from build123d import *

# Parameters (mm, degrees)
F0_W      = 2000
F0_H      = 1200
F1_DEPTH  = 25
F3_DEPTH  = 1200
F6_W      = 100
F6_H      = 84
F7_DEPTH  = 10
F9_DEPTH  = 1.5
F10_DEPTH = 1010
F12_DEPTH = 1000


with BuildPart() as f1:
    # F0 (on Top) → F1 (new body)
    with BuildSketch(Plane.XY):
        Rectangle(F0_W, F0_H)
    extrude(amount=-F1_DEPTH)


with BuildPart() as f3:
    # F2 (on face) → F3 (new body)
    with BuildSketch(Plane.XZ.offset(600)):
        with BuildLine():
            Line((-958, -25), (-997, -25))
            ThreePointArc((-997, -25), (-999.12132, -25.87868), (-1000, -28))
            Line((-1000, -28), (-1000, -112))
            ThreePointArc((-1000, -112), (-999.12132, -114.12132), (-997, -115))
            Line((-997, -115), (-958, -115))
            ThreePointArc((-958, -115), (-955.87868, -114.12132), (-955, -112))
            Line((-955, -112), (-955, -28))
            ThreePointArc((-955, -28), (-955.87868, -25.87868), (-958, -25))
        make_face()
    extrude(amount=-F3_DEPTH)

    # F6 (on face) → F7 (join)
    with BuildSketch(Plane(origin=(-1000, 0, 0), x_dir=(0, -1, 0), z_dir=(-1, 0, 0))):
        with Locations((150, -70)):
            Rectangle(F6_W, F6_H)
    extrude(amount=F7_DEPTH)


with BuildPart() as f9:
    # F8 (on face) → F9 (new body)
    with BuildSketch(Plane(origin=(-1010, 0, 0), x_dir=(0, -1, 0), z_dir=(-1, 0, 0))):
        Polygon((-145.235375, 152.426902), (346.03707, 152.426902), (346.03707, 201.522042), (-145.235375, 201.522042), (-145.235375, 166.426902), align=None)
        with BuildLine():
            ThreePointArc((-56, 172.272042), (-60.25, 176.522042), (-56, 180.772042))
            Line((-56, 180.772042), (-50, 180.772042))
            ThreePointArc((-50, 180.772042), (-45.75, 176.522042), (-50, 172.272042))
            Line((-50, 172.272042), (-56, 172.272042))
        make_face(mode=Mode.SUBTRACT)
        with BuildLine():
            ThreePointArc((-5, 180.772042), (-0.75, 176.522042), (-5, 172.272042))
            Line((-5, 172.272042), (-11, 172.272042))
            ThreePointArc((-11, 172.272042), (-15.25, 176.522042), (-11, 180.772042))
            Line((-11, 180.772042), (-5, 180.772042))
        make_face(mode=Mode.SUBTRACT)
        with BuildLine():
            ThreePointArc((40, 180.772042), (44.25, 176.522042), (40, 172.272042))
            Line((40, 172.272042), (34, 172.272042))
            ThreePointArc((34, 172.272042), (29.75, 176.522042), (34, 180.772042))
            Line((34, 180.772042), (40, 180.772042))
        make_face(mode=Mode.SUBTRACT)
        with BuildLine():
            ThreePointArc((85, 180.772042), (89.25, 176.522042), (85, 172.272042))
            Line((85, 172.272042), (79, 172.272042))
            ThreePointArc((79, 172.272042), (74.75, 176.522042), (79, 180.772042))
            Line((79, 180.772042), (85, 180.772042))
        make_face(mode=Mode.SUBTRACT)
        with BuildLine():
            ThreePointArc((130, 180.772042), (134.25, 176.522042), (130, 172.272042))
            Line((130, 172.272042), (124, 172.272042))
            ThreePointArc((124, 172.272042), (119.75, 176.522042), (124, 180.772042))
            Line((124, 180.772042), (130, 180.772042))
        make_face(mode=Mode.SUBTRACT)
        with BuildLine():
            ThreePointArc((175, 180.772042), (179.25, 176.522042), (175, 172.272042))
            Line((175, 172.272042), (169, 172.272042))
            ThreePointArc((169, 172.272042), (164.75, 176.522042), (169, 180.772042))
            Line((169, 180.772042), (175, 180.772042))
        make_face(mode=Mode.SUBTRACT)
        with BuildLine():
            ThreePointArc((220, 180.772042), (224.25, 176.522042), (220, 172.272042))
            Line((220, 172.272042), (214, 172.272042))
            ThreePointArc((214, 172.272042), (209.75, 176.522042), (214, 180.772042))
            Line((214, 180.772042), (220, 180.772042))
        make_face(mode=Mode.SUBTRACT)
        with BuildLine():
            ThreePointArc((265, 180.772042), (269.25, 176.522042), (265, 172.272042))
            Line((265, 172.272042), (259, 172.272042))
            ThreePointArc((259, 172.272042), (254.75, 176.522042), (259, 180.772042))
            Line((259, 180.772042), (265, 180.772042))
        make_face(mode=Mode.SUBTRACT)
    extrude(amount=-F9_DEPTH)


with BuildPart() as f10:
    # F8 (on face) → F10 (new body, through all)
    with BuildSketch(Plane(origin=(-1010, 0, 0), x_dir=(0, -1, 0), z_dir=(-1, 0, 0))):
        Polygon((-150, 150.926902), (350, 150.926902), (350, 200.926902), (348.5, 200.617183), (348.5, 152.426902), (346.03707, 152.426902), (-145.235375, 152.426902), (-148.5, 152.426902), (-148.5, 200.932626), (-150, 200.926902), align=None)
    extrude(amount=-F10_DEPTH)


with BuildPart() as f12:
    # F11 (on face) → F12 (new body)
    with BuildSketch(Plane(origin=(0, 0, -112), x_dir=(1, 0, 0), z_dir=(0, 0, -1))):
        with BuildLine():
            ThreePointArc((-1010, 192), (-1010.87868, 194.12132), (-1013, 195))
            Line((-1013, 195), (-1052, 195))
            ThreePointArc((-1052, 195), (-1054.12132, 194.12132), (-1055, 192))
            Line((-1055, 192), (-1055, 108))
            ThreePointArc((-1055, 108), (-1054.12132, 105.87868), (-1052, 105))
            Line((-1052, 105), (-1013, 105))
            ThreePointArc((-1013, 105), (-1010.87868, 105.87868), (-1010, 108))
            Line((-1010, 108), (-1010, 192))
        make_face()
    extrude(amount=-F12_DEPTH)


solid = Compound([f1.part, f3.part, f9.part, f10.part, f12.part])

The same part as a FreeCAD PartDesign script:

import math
import FreeCAD as App
import Part
import Sketcher
from FreeCAD import Vector

doc = App.newDocument("Part")
params = doc.addObject("Spreadsheet::Sheet", "Params")
for row, (alias, value) in enumerate([
    ("sketch1_width", "2000 mm"),
    ("sketch1_height", "1200 mm"),
    ("pad1_length", "25 mm"),
    ("sketch2_radius", "3.000001 mm"),
    ("sketch2_width", "39 mm"),
    ("sketch2_height", "84 mm"),
    ("pad2_length", "1200 mm"),
    ("sketch3_width", "100 mm"),
    ("sketch3_height", "84 mm"),
    ("pad3_length", "10 mm"),
    ("sketch4_width", "6 mm"),
    ("sketch4_radius", "4.25 mm"),
    ("pad4_length", "1.5 mm"),
    ("sketch5_width", "500 mm"),
    ("sketch5_width2", "497 mm"),
    ("sketch5_height", "50 mm"),
    ("pad5_length", "1010 mm"),
    ("sketch6_radius", "3.000001 mm"),
    ("sketch6_width", "39 mm"),
    ("sketch6_height", "84 mm"),
    ("pad6_length", "1000 mm"),
], start=1):
    params.set(f"A{row}", alias)
    params.set(f"B{row}", "=" + value)
    params.setAlias(f"B{row}", alias)

body = doc.addObject("PartDesign::Body", "Body")

sketch1 = body.newObject("Sketcher::SketchObject", "Sketch")
sketch1.AttachmentSupport = (doc.getObject("XY_Plane"), [""])
sketch1.MapMode = "FlatFace"
sketch1.addGeometry([
    Part.LineSegment(Vector(-1000, 600, 0), Vector(-1000, -600, 0)),
    Part.LineSegment(Vector(-1000, -600, 0), Vector(1000, -600, 0)),
    Part.LineSegment(Vector(1000, -600, 0), Vector(1000, 600, 0)),
    Part.LineSegment(Vector(1000, 600, 0), Vector(-1000, 600, 0)),
], False)
sketch1.addConstraint([
    Sketcher.Constraint("Coincident", 0, 2, 1, 1),
    Sketcher.Constraint("Coincident", 1, 2, 2, 1),
    Sketcher.Constraint("Coincident", 2, 2, 3, 1),
    Sketcher.Constraint("Coincident", 3, 2, 0, 1),
    Sketcher.Constraint("Vertical", 0),
    Sketcher.Constraint("Horizontal", 1),
    Sketcher.Constraint("Vertical", 2),
    Sketcher.Constraint("Horizontal", 3),
    Sketcher.Constraint("Symmetric", 0, 2, 2, 2, -1, 1),
    Sketcher.Constraint("DistanceX", 1, 1, 1, 2, 2000.0),
    Sketcher.Constraint("DistanceY", 0, 2, 0, 1, 1200.0),
])
sketch1.setExpression("Constraints[9]", "Params.sketch1_width")
sketch1.setExpression("Constraints[10]", "Params.sketch1_height")
pad1 = body.newObject("PartDesign::Pad", "Pad")
pad1.Profile = sketch1
pad1.setExpression("Length", "Params.pad1_length")
pad1.Reversed = True
body2 = doc.addObject("PartDesign::Body", "Body001")

sketch2 = body2.newObject("Sketcher::SketchObject", "Sketch001")
sketch2.AttachmentSupport = (doc.getObject("XZ_Plane001"), [""])
sketch2.MapMode = "FlatFace"
sketch2.AttachmentOffset = App.Placement(Vector(0, 0, 600), App.Rotation())
sketch2.addGeometry([
    Part.LineSegment(Vector(-958, -25, 0), Vector(-997, -25, 0)),
    Part.ArcOfCircle(Part.Circle(Vector(-996.999999, -28.000001, 0), Vector(0, 0, 1), 3.000001), math.radians(90.000022), math.radians(179.999978)),
    Part.LineSegment(Vector(-1000, -28, 0), Vector(-1000, -112, 0)),
    Part.ArcOfCircle(Part.Circle(Vector(-996.999999, -111.999999, 0), Vector(0, 0, 1), 3.000001), math.radians(-179.999978), math.radians(-90.000022)),
    Part.LineSegment(Vector(-997, -115, 0), Vector(-958, -115, 0)),
    Part.ArcOfCircle(Part.Circle(Vector(-958.000001, -111.999999, 0), Vector(0, 0, 1), 3.000001), math.radians(-89.999978), math.radians(-0.000022)),
    Part.LineSegment(Vector(-955, -112, 0), Vector(-955, -28, 0)),
    Part.ArcOfCircle(Part.Circle(Vector(-958.000001, -28.000001, 0), Vector(0, 0, 1), 3.000001), math.radians(0.000022), math.radians(89.999978)),
], False)
sketch2.addConstraint([
    Sketcher.Constraint("Tangent", 0, 2, 1, 1),
    Sketcher.Constraint("Tangent", 1, 2, 2, 1),
    Sketcher.Constraint("Tangent", 2, 2, 3, 1),
    Sketcher.Constraint("Tangent", 3, 2, 4, 1),
    Sketcher.Constraint("Tangent", 4, 2, 5, 1),
    Sketcher.Constraint("Tangent", 5, 2, 6, 1),
    Sketcher.Constraint("Tangent", 6, 2, 7, 1),
    Sketcher.Constraint("Tangent", 7, 2, 0, 1),
    Sketcher.Constraint("Horizontal", 0),
    Sketcher.Constraint("Vertical", 2),
    Sketcher.Constraint("Horizontal", 4),
    Sketcher.Constraint("Vertical", 6),
    Sketcher.Constraint("Equal", 1, 3),
    Sketcher.Constraint("Equal", 3, 5),
    Sketcher.Constraint("Equal", 5, 7),
    Sketcher.Constraint("Radius", 1, 3.000001),
    Sketcher.Constraint("DistanceX", 0, 2, 0, 1, 39.0),
    Sketcher.Constraint("DistanceY", 2, 2, 2, 1, 84.0),
    Sketcher.Constraint("DistanceX", 1, 3, -1, 1, 996.999999),
    Sketcher.Constraint("DistanceY", 1, 3, -1, 1, 28.000001),
])
sketch2.setExpression("Constraints[15]", "Params.sketch2_radius")
sketch2.setExpression("Constraints[16]", "Params.sketch2_width")
sketch2.setExpression("Constraints[17]", "Params.sketch2_height")
pad2 = body2.newObject("PartDesign::Pad", "Pad001")
pad2.Profile = sketch2
pad2.setExpression("Length", "Params.pad2_length")
pad2.Reversed = True

sketch3 = body2.newObject("Sketcher::SketchObject", "Sketch002")
sketch3.AttachmentSupport = (doc.getObject("YZ_Plane001"), [""])
sketch3.MapMode = "FlatFace"
sketch3.AttachmentOffset = App.Placement(Vector(0, 0, -1000), App.Rotation())
sketch3.addGeometry([
    Part.LineSegment(Vector(-100, -28, 0), Vector(-100, -112, 0)),
    Part.LineSegment(Vector(-100, -112, 0), Vector(-200, -112, 0)),
    Part.LineSegment(Vector(-200, -112, 0), Vector(-200, -28, 0)),
    Part.LineSegment(Vector(-200, -28, 0), Vector(-100, -28, 0)),
], False)
sketch3.addConstraint([
    Sketcher.Constraint("Coincident", 0, 2, 1, 1),
    Sketcher.Constraint("Coincident", 1, 2, 2, 1),
    Sketcher.Constraint("Coincident", 2, 2, 3, 1),
    Sketcher.Constraint("Coincident", 3, 2, 0, 1),
    Sketcher.Constraint("Vertical", 0),
    Sketcher.Constraint("Horizontal", 1),
    Sketcher.Constraint("Vertical", 2),
    Sketcher.Constraint("Horizontal", 3),
    Sketcher.Constraint("DistanceX", 1, 2, 1, 1, 100.0),
    Sketcher.Constraint("DistanceY", 0, 2, 0, 1, 84.0),
    Sketcher.Constraint("DistanceX", 0, 2, -1, 1, 100.0),
    Sketcher.Constraint("DistanceY", 0, 2, -1, 1, 112.0),
])
sketch3.setExpression("Constraints[8]", "Params.sketch3_width")
sketch3.setExpression("Constraints[9]", "Params.sketch3_height")
pad3 = body2.newObject("PartDesign::Pad", "Pad002")
pad3.Profile = sketch3
pad3.setExpression("Length", "Params.pad3_length")
pad3.Reversed = True
body3 = doc.addObject("PartDesign::Body", "Body002")

sketch4 = body3.newObject("Sketcher::SketchObject", "Sketch003")
sketch4.AttachmentSupport = (doc.getObject("YZ_Plane002"), [""])
sketch4.MapMode = "FlatFace"
sketch4.AttachmentOffset = App.Placement(Vector(0, 0, -1010), App.Rotation())
sketch4.addGeometry([
    Part.LineSegment(Vector(145.235375, 152.426902, 0), Vector(-346.03707, 152.426902, 0)),
    Part.LineSegment(Vector(-346.03707, 152.426902, 0), Vector(-346.03707, 201.522042, 0)),
    Part.LineSegment(Vector(-346.03707, 201.522042, 0), Vector(145.235375, 201.522042, 0)),
    Part.LineSegment(Vector(145.235375, 201.522042, 0), Vector(145.235375, 152.426902, 0)),
    Part.LineSegment(Vector(50, 172.272042, 0), Vector(56, 172.272042, 0)),
    Part.ArcOfCircle(Part.Circle(Vector(56, 176.522042, 0), Vector(0, 0, 1), 4.25), math.radians(-90), math.radians(90)),
    Part.LineSegment(Vector(56, 180.772042, 0), Vector(50, 180.772042, 0)),
    Part.ArcOfCircle(Part.Circle(Vector(50, 176.522042, 0), Vector(0, 0, 1), 4.25), math.radians(90), math.radians(270)),
    Part.LineSegment(Vector(11, 180.772042, 0), Vector(5, 180.772042, 0)),
    Part.ArcOfCircle(Part.Circle(Vector(5, 176.522042, 0), Vector(0, 0, 1), 4.25), math.radians(90), math.radians(270)),
    Part.LineSegment(Vector(5, 172.272042, 0), Vector(11, 172.272042, 0)),
    Part.ArcOfCircle(Part.Circle(Vector(11, 176.522042, 0), Vector(0, 0, 1), 4.25), math.radians(-90), math.radians(90)),
    Part.LineSegment(Vector(-34, 180.772042, 0), Vector(-40, 180.772042, 0)),
    Part.ArcOfCircle(Part.Circle(Vector(-40, 176.522042, 0), Vector(0, 0, 1), 4.25), math.radians(90), math.radians(270)),
    Part.LineSegment(Vector(-40, 172.272042, 0), Vector(-34, 172.272042, 0)),
    Part.ArcOfCircle(Part.Circle(Vector(-34, 176.522042, 0), Vector(0, 0, 1), 4.25), math.radians(-90), math.radians(90)),
    Part.LineSegment(Vector(-79, 180.772042, 0), Vector(-85, 180.772042, 0)),
    Part.ArcOfCircle(Part.Circle(Vector(-85, 176.522042, 0), Vector(0, 0, 1), 4.25), math.radians(90), math.radians(270)),
    Part.LineSegment(Vector(-85, 172.272042, 0), Vector(-79, 172.272042, 0)),
    Part.ArcOfCircle(Part.Circle(Vector(-79, 176.522042, 0), Vector(0, 0, 1), 4.25), math.radians(-90), math.radians(90)),
    Part.LineSegment(Vector(-124, 180.772042, 0), Vector(-130, 180.772042, 0)),
    Part.ArcOfCircle(Part.Circle(Vector(-130, 176.522042, 0), Vector(0, 0, 1), 4.25), math.radians(90), math.radians(270)),
    Part.LineSegment(Vector(-130, 172.272042, 0), Vector(-124, 172.272042, 0)),
    Part.ArcOfCircle(Part.Circle(Vector(-124, 176.522042, 0), Vector(0, 0, 1), 4.25), math.radians(-90), math.radians(90)),
    Part.LineSegment(Vector(-169, 180.772042, 0), Vector(-175, 180.772042, 0)),
    Part.ArcOfCircle(Part.Circle(Vector(-175, 176.522042, 0), Vector(0, 0, 1), 4.25), math.radians(90), math.radians(270)),
    Part.LineSegment(Vector(-175, 172.272042, 0), Vector(-169, 172.272042, 0)),
    Part.ArcOfCircle(Part.Circle(Vector(-169, 176.522042, 0), Vector(0, 0, 1), 4.25), math.radians(-90), math.radians(90)),
    Part.LineSegment(Vector(-214, 180.772042, 0), Vector(-220, 180.772042, 0)),
    Part.ArcOfCircle(Part.Circle(Vector(-220, 176.522042, 0), Vector(0, 0, 1), 4.25), math.radians(90), math.radians(270)),
    Part.LineSegment(Vector(-220, 172.272042, 0), Vector(-214, 172.272042, 0)),
    Part.ArcOfCircle(Part.Circle(Vector(-214, 176.522042, 0), Vector(0, 0, 1), 4.25), math.radians(-90), math.radians(90)),
    Part.LineSegment(Vector(-259, 180.772042, 0), Vector(-265, 180.772042, 0)),
    Part.ArcOfCircle(Part.Circle(Vector(-265, 176.522042, 0), Vector(0, 0, 1), 4.25), math.radians(90), math.radians(270)),
    Part.LineSegment(Vector(-265, 172.272042, 0), Vector(-259, 172.272042, 0)),
    Part.ArcOfCircle(Part.Circle(Vector(-259, 176.522042, 0), Vector(0, 0, 1), 4.25), math.radians(-90), math.radians(90)),
], False)
sketch4.addConstraint([
    Sketcher.Constraint("Coincident", 0, 2, 1, 1),
    Sketcher.Constraint("Coincident", 1, 2, 2, 1),
    Sketcher.Constraint("Coincident", 2, 2, 3, 1),
    Sketcher.Constraint("Coincident", 3, 2, 0, 1),
    Sketcher.Constraint("Tangent", 4, 2, 5, 1),
    Sketcher.Constraint("Tangent", 5, 2, 6, 1),
    Sketcher.Constraint("Tangent", 6, 2, 7, 1),
    Sketcher.Constraint("Tangent", 7, 2, 4, 1),
    Sketcher.Constraint("Tangent", 8, 2, 9, 1),
    Sketcher.Constraint("Tangent", 9, 2, 10, 1),
    Sketcher.Constraint("Tangent", 10, 2, 11, 1),
    Sketcher.Constraint("Tangent", 11, 2, 8, 1),
    Sketcher.Constraint("Tangent", 12, 2, 13, 1),
    Sketcher.Constraint("Tangent", 13, 2, 14, 1),
    Sketcher.Constraint("Tangent", 14, 2, 15, 1),
    Sketcher.Constraint("Tangent", 15, 2, 12, 1),
    Sketcher.Constraint("Tangent", 16, 2, 17, 1),
    Sketcher.Constraint("Tangent", 17, 2, 18, 1),
    Sketcher.Constraint("Tangent", 18, 2, 19, 1),
    Sketcher.Constraint("Tangent", 19, 2, 16, 1),
    Sketcher.Constraint("Tangent", 20, 2, 21, 1),
    Sketcher.Constraint("Tangent", 21, 2, 22, 1),
    Sketcher.Constraint("Tangent", 22, 2, 23, 1),
    Sketcher.Constraint("Tangent", 23, 2, 20, 1),
    Sketcher.Constraint("Tangent", 24, 2, 25, 1),
    Sketcher.Constraint("Tangent", 25, 2, 26, 1),
    Sketcher.Constraint("Tangent", 26, 2, 27, 1),
    Sketcher.Constraint("Tangent", 27, 2, 24, 1),
    Sketcher.Constraint("Tangent", 28, 2, 29, 1),
    Sketcher.Constraint("Tangent", 29, 2, 30, 1),
    Sketcher.Constraint("Tangent", 30, 2, 31, 1),
    Sketcher.Constraint("Tangent", 31, 2, 28, 1),
    Sketcher.Constraint("Tangent", 32, 2, 33, 1),
    Sketcher.Constraint("Tangent", 33, 2, 34, 1),
    Sketcher.Constraint("Tangent", 34, 2, 35, 1),
    Sketcher.Constraint("Tangent", 35, 2, 32, 1),
    Sketcher.Constraint("Horizontal", 0),
    Sketcher.Constraint("Vertical", 1),
    Sketcher.Constraint("Horizontal", 2),
    Sketcher.Constraint("Vertical", 3),
    Sketcher.Constraint("Horizontal", 4),
    Sketcher.Constraint("Horizontal", 6),
    Sketcher.Constraint("Horizontal", 8),
    Sketcher.Constraint("Horizontal", 10),
    Sketcher.Constraint("Horizontal", 12),
    Sketcher.Constraint("Horizontal", 14),
    Sketcher.Constraint("Horizontal", 16),
    Sketcher.Constraint("Horizontal", 18),
    Sketcher.Constraint("Horizontal", 20),
    Sketcher.Constraint("Horizontal", 22),
    Sketcher.Constraint("Horizontal", 24),
    Sketcher.Constraint("Horizontal", 26),
    Sketcher.Constraint("Horizontal", 28),
    Sketcher.Constraint("Horizontal", 30),
    Sketcher.Constraint("Horizontal", 32),
    Sketcher.Constraint("Horizontal", 34),
    Sketcher.Constraint("Equal", 7, 9),
    Sketcher.Constraint("Equal", 11, 13),
    Sketcher.Constraint("Equal", 15, 17),
    Sketcher.Constraint("Equal", 19, 21),
    Sketcher.Constraint("Equal", 23, 25),
    Sketcher.Constraint("Equal", 27, 29),
    Sketcher.Constraint("Equal", 31, 33),
    Sketcher.Constraint("Horizontal", 7, 3, 9, 3),
    Sketcher.Constraint("Horizontal", 11, 3, 13, 3),
    Sketcher.Constraint("Horizontal", 15, 3, 17, 3),
    Sketcher.Constraint("Horizontal", 19, 3, 21, 3),
    Sketcher.Constraint("Horizontal", 23, 3, 25, 3),
    Sketcher.Constraint("Horizontal", 27, 3, 29, 3),
    Sketcher.Constraint("Horizontal", 31, 3, 33, 3),
    Sketcher.Constraint("Equal", 6, 8),
    Sketcher.Constraint("Equal", 10, 12),
    Sketcher.Constraint("Equal", 14, 16),
    Sketcher.Constraint("Equal", 18, 20),
    Sketcher.Constraint("Equal", 22, 24),
    Sketcher.Constraint("Equal", 26, 28),
    Sketcher.Constraint("Equal", 30, 32),
    Sketcher.Constraint("DistanceX", 4, 1, 4, 2, 6.0),
    Sketcher.Constraint("Radius", 5, 4.25),
    Sketcher.Constraint("DistanceX", -1, 1, 5, 3, 56.0),
    Sketcher.Constraint("DistanceX", -1, 1, 9, 3, 5.0),
    Sketcher.Constraint("DistanceX", 13, 3, -1, 1, 40.0),
    Sketcher.Constraint("DistanceX", 17, 3, -1, 1, 85.0),
    Sketcher.Constraint("DistanceX", 21, 3, -1, 1, 130.0),
    Sketcher.Constraint("DistanceX", 25, 3, -1, 1, 175.0),
    Sketcher.Constraint("DistanceX", 29, 3, -1, 1, 220.0),
    Sketcher.Constraint("DistanceX", 33, 3, -1, 1, 265.0),
    Sketcher.Constraint("DistanceY", 33, 3, 1, 2, 25.0),
    Sketcher.Constraint("DistanceY", 1, 1, 1, 2, 49.09514),
    Sketcher.Constraint("DistanceX", 0, 2, 0, 1, 491.272445),
    Sketcher.Constraint("DistanceY", -1, 1, 5, 3, 176.522042),
    Sketcher.Constraint("DistanceX", 0, 2, -1, 1, 346.03707),
])
sketch4.setExpression("Constraints[77]", "Params.sketch4_width")
sketch4.setExpression("Constraints[78]", "Params.sketch4_radius")
pad4 = body3.newObject("PartDesign::Pad", "Pad003")
pad4.Profile = sketch4
pad4.setExpression("Length", "Params.pad4_length")
body4 = doc.addObject("PartDesign::Body", "Body003")

sketch5 = body4.newObject("Sketcher::SketchObject", "Sketch004")
sketch5.AttachmentSupport = (doc.getObject("YZ_Plane003"), [""])
sketch5.MapMode = "FlatFace"
sketch5.AttachmentOffset = App.Placement(Vector(0, 0, -1010), App.Rotation())
sketch5.addGeometry([
    Part.LineSegment(Vector(150, 150.926902, 0), Vector(-350, 150.926902, 0)),
    Part.LineSegment(Vector(-350, 150.926902, 0), Vector(-350, 200.926902, 0)),
    Part.LineSegment(Vector(-350, 200.926902, 0), Vector(-348.5, 200.617183, 0)),
    Part.LineSegment(Vector(-348.5, 200.617183, 0), Vector(-348.5, 152.426902, 0)),
    Part.LineSegment(Vector(-348.5, 152.426902, 0), Vector(148.5, 152.426902, 0)),
    Part.LineSegment(Vector(148.5, 152.426902, 0), Vector(148.5, 200.932626, 0)),
    Part.LineSegment(Vector(148.5, 200.932626, 0), Vector(150, 200.926902, 0)),
    Part.LineSegment(Vector(150, 200.926902, 0), Vector(150, 150.926902, 0)),
], False)
sketch5.addConstraint([
    Sketcher.Constraint("Coincident", 0, 2, 1, 1),
    Sketcher.Constraint("Coincident", 1, 2, 2, 1),
    Sketcher.Constraint("Coincident", 2, 2, 3, 1),
    Sketcher.Constraint("Coincident", 3, 2, 4, 1),
    Sketcher.Constraint("Coincident", 4, 2, 5, 1),
    Sketcher.Constraint("Coincident", 5, 2, 6, 1),
    Sketcher.Constraint("Coincident", 6, 2, 7, 1),
    Sketcher.Constraint("Coincident", 7, 2, 0, 1),
    Sketcher.Constraint("Horizontal", 0),
    Sketcher.Constraint("Vertical", 1),
    Sketcher.Constraint("Vertical", 3),
    Sketcher.Constraint("Horizontal", 4),
    Sketcher.Constraint("Vertical", 5),
    Sketcher.Constraint("Vertical", 7),
    Sketcher.Constraint("Horizontal", 1, 2, 6, 2),
    Sketcher.Constraint("DistanceX", 0, 2, 0, 1, 500.0),
    Sketcher.Constraint("DistanceX", 4, 1, 4, 2, 497.0),
    Sketcher.Constraint("DistanceY", 1, 1, 1, 2, 50.0),
    Sketcher.Constraint("DistanceX", 0, 2, -1, 1, 350.0),
    Sketcher.Constraint("DistanceX", 2, 2, -1, 1, 348.5),
    Sketcher.Constraint("DistanceY", 0, 2, 3, 2, 1.5),
    Sketcher.Constraint("DistanceY", 3, 2, 3, 1, 48.190281),
    Sketcher.Constraint("Distance", 6, 1.500011),
    Sketcher.Constraint("DistanceY", -1, 1, 0, 2, 150.926902),
])
sketch5.setExpression("Constraints[15]", "Params.sketch5_width")
sketch5.setExpression("Constraints[16]", "Params.sketch5_width2")
sketch5.setExpression("Constraints[17]", "Params.sketch5_height")
pad5 = body4.newObject("PartDesign::Pad", "Pad004")
pad5.Profile = sketch5
pad5.setExpression("Length", "Params.pad5_length")
body5 = doc.addObject("PartDesign::Body", "Body004")

sketch6 = body5.newObject("Sketcher::SketchObject", "Sketch005")
sketch6.AttachmentSupport = (doc.getObject("XY_Plane004"), [""])
sketch6.MapMode = "FlatFace"
sketch6.AttachmentOffset = App.Placement(Vector(0, 0, -112), App.Rotation())
sketch6.addGeometry([
    Part.ArcOfCircle(Part.Circle(Vector(-1013.000001, -191.999999, 0), Vector(0, 0, 1), 3.000001), math.radians(-89.999978), math.radians(-0.000022)),
    Part.LineSegment(Vector(-1013, -195, 0), Vector(-1052, -195, 0)),
    Part.ArcOfCircle(Part.Circle(Vector(-1051.999999, -191.999999, 0), Vector(0, 0, 1), 3.000001), math.radians(-179.999978), math.radians(-90.000022)),
    Part.LineSegment(Vector(-1055, -192, 0), Vector(-1055, -108, 0)),
    Part.ArcOfCircle(Part.Circle(Vector(-1051.999999, -108.000001, 0), Vector(0, 0, 1), 3.000001), math.radians(90.000022), math.radians(179.999978)),
    Part.LineSegment(Vector(-1052, -105, 0), Vector(-1013, -105, 0)),
    Part.ArcOfCircle(Part.Circle(Vector(-1013.000001, -108.000001, 0), Vector(0, 0, 1), 3.000001), math.radians(0.000022), math.radians(89.999978)),
    Part.LineSegment(Vector(-1010, -108, 0), Vector(-1010, -192, 0)),
], False)
sketch6.addConstraint([
    Sketcher.Constraint("Tangent", 0, 1, 1, 1),
    Sketcher.Constraint("Tangent", 1, 2, 2, 2),
    Sketcher.Constraint("Tangent", 2, 1, 3, 1),
    Sketcher.Constraint("Tangent", 3, 2, 4, 2),
    Sketcher.Constraint("Tangent", 4, 1, 5, 1),
    Sketcher.Constraint("Tangent", 5, 2, 6, 2),
    Sketcher.Constraint("Tangent", 6, 1, 7, 1),
    Sketcher.Constraint("Tangent", 7, 2, 0, 2),
    Sketcher.Constraint("Horizontal", 1),
    Sketcher.Constraint("Vertical", 3),
    Sketcher.Constraint("Horizontal", 5),
    Sketcher.Constraint("Vertical", 7),
    Sketcher.Constraint("Equal", 0, 2),
    Sketcher.Constraint("Equal", 2, 4),
    Sketcher.Constraint("Equal", 4, 6),
    Sketcher.Constraint("Radius", 0, 3.000001),
    Sketcher.Constraint("DistanceX", 1, 2, 1, 1, 39.0),
    Sketcher.Constraint("DistanceY", 3, 1, 3, 2, 84.0),
    Sketcher.Constraint("DistanceX", 0, 3, -1, 1, 1013.000001),
    Sketcher.Constraint("DistanceY", 0, 3, -1, 1, 191.999999),
])
sketch6.setExpression("Constraints[15]", "Params.sketch6_radius")
sketch6.setExpression("Constraints[16]", "Params.sketch6_width")
sketch6.setExpression("Constraints[17]", "Params.sketch6_height")
pad6 = body5.newObject("PartDesign::Pad", "Pad005")
pad6.Profile = sketch6
pad6.setExpression("Length", "Params.pad6_length")

doc.recompute()
